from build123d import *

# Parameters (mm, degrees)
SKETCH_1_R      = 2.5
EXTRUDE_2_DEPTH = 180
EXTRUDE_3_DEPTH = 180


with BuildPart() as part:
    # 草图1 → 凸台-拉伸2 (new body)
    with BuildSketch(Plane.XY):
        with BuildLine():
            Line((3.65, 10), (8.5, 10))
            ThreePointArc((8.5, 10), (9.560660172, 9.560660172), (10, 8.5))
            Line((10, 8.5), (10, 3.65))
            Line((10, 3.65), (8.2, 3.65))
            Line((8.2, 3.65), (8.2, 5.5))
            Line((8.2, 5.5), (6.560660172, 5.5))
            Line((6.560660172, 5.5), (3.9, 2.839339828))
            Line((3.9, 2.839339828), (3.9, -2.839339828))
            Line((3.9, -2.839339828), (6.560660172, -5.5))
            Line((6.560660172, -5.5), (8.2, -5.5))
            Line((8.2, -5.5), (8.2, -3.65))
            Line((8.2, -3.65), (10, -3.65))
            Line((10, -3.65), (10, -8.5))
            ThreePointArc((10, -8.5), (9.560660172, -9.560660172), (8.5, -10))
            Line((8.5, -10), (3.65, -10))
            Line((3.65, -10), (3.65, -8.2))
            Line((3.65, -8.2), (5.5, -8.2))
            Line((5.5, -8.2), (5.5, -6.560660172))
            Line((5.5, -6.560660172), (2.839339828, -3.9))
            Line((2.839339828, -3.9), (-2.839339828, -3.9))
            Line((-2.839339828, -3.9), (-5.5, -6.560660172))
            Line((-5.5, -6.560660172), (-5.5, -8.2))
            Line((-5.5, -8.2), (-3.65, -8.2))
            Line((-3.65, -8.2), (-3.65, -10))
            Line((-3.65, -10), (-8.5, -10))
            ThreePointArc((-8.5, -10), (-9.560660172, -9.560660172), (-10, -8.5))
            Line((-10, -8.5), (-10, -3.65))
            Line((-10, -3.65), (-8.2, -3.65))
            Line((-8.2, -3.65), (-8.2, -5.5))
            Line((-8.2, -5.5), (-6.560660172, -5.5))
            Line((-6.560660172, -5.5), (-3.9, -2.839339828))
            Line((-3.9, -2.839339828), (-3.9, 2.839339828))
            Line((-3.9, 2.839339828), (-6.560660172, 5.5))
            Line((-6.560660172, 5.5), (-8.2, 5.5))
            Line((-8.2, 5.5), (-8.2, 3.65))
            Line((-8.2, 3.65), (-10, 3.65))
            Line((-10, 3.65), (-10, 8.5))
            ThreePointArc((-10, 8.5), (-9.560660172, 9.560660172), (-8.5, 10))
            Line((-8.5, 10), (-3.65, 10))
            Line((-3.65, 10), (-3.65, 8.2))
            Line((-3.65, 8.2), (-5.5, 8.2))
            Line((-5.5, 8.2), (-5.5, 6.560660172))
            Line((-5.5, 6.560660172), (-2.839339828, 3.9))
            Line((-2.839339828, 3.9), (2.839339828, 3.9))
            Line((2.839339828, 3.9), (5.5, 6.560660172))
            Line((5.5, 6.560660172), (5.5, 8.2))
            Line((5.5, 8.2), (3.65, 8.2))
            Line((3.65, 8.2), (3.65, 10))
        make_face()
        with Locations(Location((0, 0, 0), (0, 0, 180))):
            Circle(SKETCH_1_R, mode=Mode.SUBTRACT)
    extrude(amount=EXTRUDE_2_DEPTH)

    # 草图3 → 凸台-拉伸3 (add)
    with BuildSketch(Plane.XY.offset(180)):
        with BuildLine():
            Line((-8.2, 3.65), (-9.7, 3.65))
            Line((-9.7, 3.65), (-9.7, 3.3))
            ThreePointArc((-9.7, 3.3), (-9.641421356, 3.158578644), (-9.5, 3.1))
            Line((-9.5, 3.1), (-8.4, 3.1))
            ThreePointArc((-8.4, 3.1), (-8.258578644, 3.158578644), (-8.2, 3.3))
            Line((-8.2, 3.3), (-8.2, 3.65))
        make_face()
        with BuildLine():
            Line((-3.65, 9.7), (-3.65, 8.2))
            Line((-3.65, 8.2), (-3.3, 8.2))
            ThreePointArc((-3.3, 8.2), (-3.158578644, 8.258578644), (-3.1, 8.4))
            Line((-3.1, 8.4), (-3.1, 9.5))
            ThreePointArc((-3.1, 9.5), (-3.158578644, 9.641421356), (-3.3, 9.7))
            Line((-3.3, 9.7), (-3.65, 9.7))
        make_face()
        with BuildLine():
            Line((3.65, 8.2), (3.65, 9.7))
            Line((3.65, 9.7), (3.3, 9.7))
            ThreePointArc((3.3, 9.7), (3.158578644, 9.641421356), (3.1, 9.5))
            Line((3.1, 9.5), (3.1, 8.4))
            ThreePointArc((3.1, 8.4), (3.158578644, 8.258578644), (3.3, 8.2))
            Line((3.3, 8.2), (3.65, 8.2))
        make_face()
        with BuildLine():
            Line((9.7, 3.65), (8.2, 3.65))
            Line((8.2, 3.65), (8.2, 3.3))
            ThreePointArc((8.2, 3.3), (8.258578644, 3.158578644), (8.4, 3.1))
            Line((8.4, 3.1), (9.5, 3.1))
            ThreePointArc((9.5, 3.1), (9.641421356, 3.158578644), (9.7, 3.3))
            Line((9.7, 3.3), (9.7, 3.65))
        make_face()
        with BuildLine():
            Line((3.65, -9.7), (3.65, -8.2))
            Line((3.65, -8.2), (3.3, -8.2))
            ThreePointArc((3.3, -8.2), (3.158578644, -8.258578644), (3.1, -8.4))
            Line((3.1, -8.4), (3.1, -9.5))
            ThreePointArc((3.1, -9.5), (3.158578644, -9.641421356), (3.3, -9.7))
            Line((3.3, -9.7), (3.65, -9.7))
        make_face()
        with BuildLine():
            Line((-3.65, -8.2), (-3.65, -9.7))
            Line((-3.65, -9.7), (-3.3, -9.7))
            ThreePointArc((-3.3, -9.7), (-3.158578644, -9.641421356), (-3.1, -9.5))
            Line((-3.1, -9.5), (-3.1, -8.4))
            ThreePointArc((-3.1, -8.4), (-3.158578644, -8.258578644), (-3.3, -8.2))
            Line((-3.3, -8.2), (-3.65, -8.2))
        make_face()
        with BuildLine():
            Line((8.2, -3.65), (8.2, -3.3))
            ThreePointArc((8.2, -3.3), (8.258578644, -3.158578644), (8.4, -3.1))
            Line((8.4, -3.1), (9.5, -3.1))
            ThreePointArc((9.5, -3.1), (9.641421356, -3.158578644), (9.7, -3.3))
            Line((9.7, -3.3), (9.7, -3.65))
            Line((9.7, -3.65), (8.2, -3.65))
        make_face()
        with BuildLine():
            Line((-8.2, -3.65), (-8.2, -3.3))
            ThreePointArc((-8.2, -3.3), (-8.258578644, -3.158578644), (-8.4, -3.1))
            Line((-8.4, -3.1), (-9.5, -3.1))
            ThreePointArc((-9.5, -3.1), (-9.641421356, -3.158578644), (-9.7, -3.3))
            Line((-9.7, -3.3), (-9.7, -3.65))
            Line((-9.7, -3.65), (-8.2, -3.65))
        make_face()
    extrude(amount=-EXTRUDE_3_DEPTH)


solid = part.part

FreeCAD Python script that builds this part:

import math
import FreeCAD as App
import Part
import Sketcher
Q = App.Units.Quantity

doc = App.newDocument("Part")
body = doc.addObject("PartDesign::Body", "Body")

# Sketch on XY plane
sketch1 = body.newObject("Sketcher::SketchObject", "Sketch")
sketch1.AttachmentSupport = (doc.getObject("XY_Plane"), [""])
sketch1.MapMode = "FlatFace"
sketch1.addGeometry(Part.LineSegment(App.Vector(8.5, 10, 0), App.Vector(3.6, 10, 0)), False)
sketch1.addGeometry(Part.LineSegment(App.Vector(3.6, 10, 0), App.Vector(3.6, 8.2, 0)), False)
sketch1.addGeometry(Part.LineSegment(App.Vector(3.6, 8.2, 0), App.Vector(5.5, 8.2, 0)), False)
sketch1.addGeometry(Part.LineSegment(App.Vector(5.5, 8.2, 0), App.Vector(5.5, 6.6, 0)), False)
sketch1.addGeometry(Part.LineSegment(App.Vector(5.5, 6.6, 0), App.Vector(2.8, 3.9, 0)), False)
sketch1.addGeometry(Part.LineSegment(App.Vector(2.8, 3.9, 0), App.Vector(-2.8, 3.9, 0)), False)
sketch1.addGeometry(Part.LineSegment(App.Vector(-2.8, 3.9, 0), App.Vector(-5.5, 6.6, 0)), False)
sketch1.addGeometry(Part.LineSegment(App.Vector(-5.5, 6.6, 0), App.Vector(-5.5, 8.2, 0)), False)
sketch1.addGeometry(Part.LineSegment(App.Vector(-5.5, 8.2, 0), App.Vector(-3.6, 8.2, 0)), False)
sketch1.addGeometry(Part.LineSegment(App.Vector(-3.6, 8.2, 0), App.Vector(-3.6, 10, 0)), False)
sketch1.addGeometry(Part.LineSegment(App.Vector(-3.6, 10, 0), App.Vector(-8.5, 10, 0)), False)
sketch1.addGeometry(Part.ArcOfCircle(Part.Circle(App.Vector(-8.5, 8.5, 0), App.Vector(0, 0, 1), 1.5), math.radians(90), math.radians(180)), False)
sketch1.addGeometry(Part.LineSegment(App.Vector(-10, 8.5, 0), App.Vector(-10, 3.6, 0)), False)
sketch1.addGeometry(Part.LineSegment(App.Vector(-10, 3.6, 0), App.Vector(-8.2, 3.6, 0)), False)
sketch1.addGeometry(Part.LineSegment(App.Vector(-8.2, 3.6, 0), App.Vector(-8.2, 5.5, 0)), False)
sketch1.addGeometry(Part.LineSegment(App.Vector(-8.2, 5.5, 0), App.Vector(-6.6, 5.5, 0)), False)
sketch1.addGeometry(Part.LineSegment(App.Vector(-6.6, 5.5, 0), App.Vector(-3.9, 2.8, 0)), False)
sketch1.addGeometry(Part.LineSegment(App.Vector(-3.9, 2.8, 0), App.Vector(-3.9, -2.8, 0)), False)
sketch1.addGeometry(Part.LineSegment(App.Vector(-3.9, -2.8, 0), App.Vector(-6.6, -5.5, 0)), False)
sketch1.addGeometry(Part.LineSegment(App.Vector(-6.6, -5.5, 0), App.Vector(-8.2, -5.5, 0)), False)
sketch1.addGeometry(Part.LineSegment(App.Vector(-8.2, -5.5, 0), App.Vector(-8.2, -3.6, 0)), False)
sketch1.addGeometry(Part.LineSegment(App.Vector(-8.2, -3.6, 0), App.Vector(-10, -3.6, 0)), False)
sketch1.addGeometry(Part.LineSegment(App.Vector(-10, -3.6, 0), App.Vector(-10, -8.5, 0)), False)
sketch1.addGeometry(Part.ArcOfCircle(Part.Circle(App.Vector(-8.5, -8.5, 0), App.Vector(0, 0, 1), 1.5), math.radians(180), math.radians(270)), False)
sketch1.addGeometry(Part.LineSegment(App.Vector(-8.5, -10, 0), App.Vector(-3.6, -10, 0)), False)
sketch1.addGeometry(Part.LineSegment(App.Vector(-3.6, -10, 0), App.Vector(-3.6, -8.2, 0)), False)
sketch1.addGeometry(Part.LineSegment(App.Vector(-3.6, -8.2, 0), App.Vector(-5.5, -8.2, 0)), False)
sketch1.addGeometry(Part.LineSegment(App.Vector(-5.5, -8.2, 0), App.Vector(-5.5, -6.6, 0)), False)
sketch1.addGeometry(Part.LineSegment(App.Vector(-5.5, -6.6, 0), App.Vector(-2.8, -3.9, 0)), False)
sketch1.addGeometry(Part.LineSegment(App.Vector(-2.8, -3.9, 0), App.Vector(2.8, -3.9, 0)), False)
sketch1.addGeometry(Part.LineSegment(App.Vector(2.8, -3.9, 0), App.Vector(5.5, -6.6, 0)), False)
sketch1.addGeometry(Part.LineSegment(App.Vector(5.5, -6.6, 0), App.Vector(5.5, -8.2, 0)), False)
sketch1.addGeometry(Part.LineSegment(App.Vector(5.5, -8.2, 0), App.Vector(3.6, -8.2, 0)), False)
sketch1.addGeometry(Part.LineSegment(App.Vector(3.6, -8.2, 0), App.Vector(3.6, -10, 0)), False)
sketch1.addGeometry(Part.LineSegment(App.Vector(3.6, -10, 0), App.Vector(8.5, -10, 0)), False)
sketch1.addGeometry(Part.ArcOfCircle(Part.Circle(App.Vector(8.5, -8.5, 0), App.Vector(0, 0, 1), 1.5), math.radians(-90), math.radians(0)), False)
sketch1.addGeometry(Part.LineSegment(App.Vector(10, -8.5, 0), App.Vector(10, -3.6, 0)), False)
sketch1.addGeometry(Part.LineSegment(App.Vector(10, -3.6, 0), App.Vector(8.2, -3.6, 0)), False)
sketch1.addGeometry(Part.LineSegment(App.Vector(8.2, -3.6, 0), App.Vector(8.2, -5.5, 0)), False)
sketch1.addGeometry(Part.LineSegment(App.Vector(8.2, -5.5, 0), App.Vector(6.6, -5.5, 0)), False)
sketch1.addGeometry(Part.LineSegment(App.Vector(6.6, -5.5, 0), App.Vector(3.9, -2.8, 0)), False)
sketch1.addGeometry(Part.LineSegment(App.Vector(3.9, -2.8, 0), App.Vector(3.9, 2.8, 0)), False)
sketch1.addGeometry(Part.LineSegment(App.Vector(3.9, 2.8, 0), App.Vector(6.6, 5.5, 0)), False)
sketch1.addGeometry(Part.LineSegment(App.Vector(6.6, 5.5, 0), App.Vector(8.2, 5.5, 0)), False)
sketch1.addGeometry(Part.LineSegment(App.Vector(8.2, 5.5, 0), App.Vector(8.2, 3.6, 0)), False)
sketch1.addGeometry(Part.LineSegment(App.Vector(8.2, 3.6, 0), App.Vector(10, 3.6, 0)), False)
sketch1.addGeometry(Part.LineSegment(App.Vector(10, 3.6, 0), App.Vector(10, 8.5, 0)), False)
sketch1.addGeometry(Part.ArcOfCircle(Part.Circle(App.Vector(8.5, 8.5, 0), App.Vector(0, 0, 1), 1.5), math.radians(0), math.radians(90)), False)
sketch1.addGeometry(Part.Circle(App.Vector(0, 0, 0), App.Vector(0, 0, 1), 2.5), False)
sketch1.addConstraint(Sketcher.Constraint("Coincident", 0, 2, 1, 1))
sketch1.addConstraint(Sketcher.Constraint("Coincident", 1, 2, 2, 1))
sketch1.addConstraint(Sketcher.Constraint("Coincident", 2, 2, 3, 1))
sketch1.addConstraint(Sketcher.Constraint("Coincident", 3, 2, 4, 1))
sketch1.addConstraint(Sketcher.Constraint("Coincident", 4, 2, 5, 1))
sketch1.addConstraint(Sketcher.Constraint("Coincident", 5, 2, 6, 1))
sketch1.addConstraint(Sketcher.Constraint("Coincident", 6, 2, 7, 1))
sketch1.addConstraint(Sketcher.Constraint("Coincident", 7, 2, 8, 1))
sketch1.addConstraint(Sketcher.Constraint("Coincident", 8, 2, 9, 1))
sketch1.addConstraint(Sketcher.Constraint("Coincident", 9, 2, 10, 1))
sketch1.addConstraint(Sketcher.Constraint("Tangent", 10, 2, 11, 1))
sketch1.addConstraint(Sketcher.Constraint("Tangent", 11, 2, 12, 1))
sketch1.addConstraint(Sketcher.Constraint("Coincident", 12, 2, 13, 1))
sketch1.addConstraint(Sketcher.Constraint("Coincident", 13, 2, 14, 1))
sketch1.addConstraint(Sketcher.Constraint("Coincident", 14, 2, 15, 1))
sketch1.addConstraint(Sketcher.Constraint("Coincident", 15, 2, 16, 1))
sketch1.addConstraint(Sketcher.Constraint("Coincident", 16, 2, 17, 1))
sketch1.addConstraint(Sketcher.Constraint("Coincident", 17, 2, 18, 1))
sketch1.addConstraint(Sketcher.Constraint("Coincident", 18, 2, 19, 1))
sketch1.addConstraint(Sketcher.Constraint("Coincident", 19, 2, 20, 1))
sketch1.addConstraint(Sketcher.Constraint("Coincident", 20, 2, 21, 1))
sketch1.addConstraint(Sketcher.Constraint("Coincident", 21, 2, 22, 1))
sketch1.addConstraint(Sketcher.Constraint("Tangent", 22, 2, 23, 1))
sketch1.addConstraint(Sketcher.Constraint("Tangent", 23, 2, 24, 1))
sketch1.addConstraint(Sketcher.Constraint("Coincident", 24, 2, 25, 1))
sketch1.addConstraint(Sketcher.Constraint("Coincident", 25, 2, 26, 1))
sketch1.addConstraint(Sketcher.Constraint("Coincident", 26, 2, 27, 1))
sketch1.addConstraint(Sketcher.Constraint("Coincident", 27, 2, 28, 1))
sketch1.addConstraint(Sketcher.Constraint("Coincident", 28, 2, 29, 1))
sketch1.addConstraint(Sketcher.Constraint("Coincident", 29, 2, 30, 1))
sketch1.addConstraint(Sketcher.Constraint("Coincident", 30, 2, 31, 1))
sketch1.addConstraint(Sketcher.Constraint("Coincident", 31, 2, 32, 1))
sketch1.addConstraint(Sketcher.Constraint("Coincident", 32, 2, 33, 1))
sketch1.addConstraint(Sketcher.Constraint("Coincident", 33, 2, 34, 1))
sketch1.addConstraint(Sketcher.Constraint("Tangent", 34, 2, 35, 1))
sketch1.addConstraint(Sketcher.Constraint("Tangent", 35, 2, 36, 1))
sketch1.addConstraint(Sketcher.Constraint("Coincident", 36, 2, 37, 1))
sketch1.addConstraint(Sketcher.Constraint("Coincident", 37, 2, 38, 1))
sketch1.addConstraint(Sketcher.Constraint("Coincident", 38, 2, 39, 1))
sketch1.addConstraint(Sketcher.Constraint("Coincident", 39, 2, 40, 1))
sketch1.addConstraint(Sketcher.Constraint("Coincident", 40, 2, 41, 1))
sketch1.addConstraint(Sketcher.Constraint("Coincident", 41, 2, 42, 1))
sketch1.addConstraint(Sketcher.Constraint("Coincident", 42, 2, 43, 1))
sketch1.addConstraint(Sketcher.Constraint("Coincident", 43, 2, 44, 1))
sketch1.addConstraint(Sketcher.Constraint("Coincident", 44, 2, 45, 1))
sketch1.addConstraint(Sketcher.Constraint("Coincident", 45, 2, 46, 1))
sketch1.addConstraint(Sketcher.Constraint("Tangent", 46, 2, 47, 1))
sketch1.addConstraint(Sketcher.Constraint("Tangent", 47, 2, 0, 1))
sketch1.addConstraint(Sketcher.Constraint("Horizontal", 0))
sketch1.addConstraint(Sketcher.Constraint("Vertical", 1))
sketch1.addConstraint(Sketcher.Constraint("Horizontal", 2))
sketch1.addConstraint(Sketcher.Constraint("Vertical", 3))
sketch1.addConstraint(Sketcher.Constraint("Horizontal", 5))
sketch1.addConstraint(Sketcher.Constraint("Vertical", 7))
sketch1.addConstraint(Sketcher.Constraint("Horizontal", 8))
sketch1.addConstraint(Sketcher.Constraint("Vertical", 9))
sketch1.addConstraint(Sketcher.Constraint("Horizontal", 10))
sketch1.addConstraint(Sketcher.Constraint("Vertical", 12))
sketch1.addConstraint(Sketcher.Constraint("Horizontal", 13))
sketch1.addConstraint(Sketcher.Constraint("Vertical", 14))
sketch1.addConstraint(Sketcher.Constraint("Horizontal", 15))
sketch1.addConstraint(Sketcher.Constraint("Vertical", 17))
sketch1.addConstraint(Sketcher.Constraint("Horizontal", 19))
sketch1.addConstraint(Sketcher.Constraint("Vertical", 20))
sketch1.addConstraint(Sketcher.Constraint("Horizontal", 21))
sketch1.addConstraint(Sketcher.Constraint("Vertical", 22))
sketch1.addConstraint(Sketcher.Constraint("Horizontal", 24))
sketch1.addConstraint(Sketcher.Constraint("Vertical", 25))
sketch1.addConstraint(Sketcher.Constraint("Horizontal", 26))
sketch1.addConstraint(Sketcher.Constraint("Vertical", 27))
sketch1.addConstraint(Sketcher.Constraint("Horizontal", 29))
sketch1.addConstraint(Sketcher.Constraint("Vertical", 31))
sketch1.addConstraint(Sketcher.Constraint("Horizontal", 32))
sketch1.addConstraint(Sketcher.Constraint("Vertical", 33))
sketch1.addConstraint(Sketcher.Constraint("Horizontal", 34))
sketch1.addConstraint(Sketcher.Constraint("Vertical", 36))
sketch1.addConstraint(Sketcher.Constraint("Horizontal", 37))
sketch1.addConstraint(Sketcher.Constraint("Vertical", 38))
sketch1.addConstraint(Sketcher.Constraint("Horizontal", 39))
sketch1.addConstraint(Sketcher.Constraint("Vertical", 41))
sketch1.addConstraint(Sketcher.Constraint("Horizontal", 43))
sketch1.addConstraint(Sketcher.Constraint("Vertical", 44))
sketch1.addConstraint(Sketcher.Constraint("Horizontal", 45))
sketch1.addConstraint(Sketcher.Constraint("Vertical", 46))
sketch1.addConstraint(Sketcher.Constraint("Coincident", 48, 3, -1, 1))
sketch1.addConstraint(Sketcher.Constraint("Equal", 11, 23))
sketch1.addConstraint(Sketcher.Constraint("Equal", 23, 35))
sketch1.addConstraint(Sketcher.Constraint("Equal", 35, 47))
sketch1.addConstraint(Sketcher.Constraint("Symmetric", 11, 3, 35, 3, -1, 1))
sketch1.addConstraint(Sketcher.Constraint("Symmetric", 23, 3, 47, 3, -1, 1))
sketch1.addConstraint(Sketcher.Constraint("Symmetric", 1, 2, 25, 2, -1, 1))
sketch1.addConstraint(Sketcher.Constraint("Symmetric", 3, 2, 27, 2, -1, 1))
sketch1.addConstraint(Sketcher.Constraint("Symmetric", 4, 2, 28, 2, -1, 1))
sketch1.addConstraint(Sketcher.Constraint("Symmetric", 6, 2, 30, 2, -1, 1))
sketch1.addConstraint(Sketcher.Constraint("Symmetric", 8, 2, 32, 2, -1, 1))
sketch1.addConstraint(Sketcher.Constraint("Symmetric", 13, 2, 37, 2, -1, 1))
sketch1.addConstraint(Sketcher.Constraint("Symmetric", 15, 2, 39, 2, -1, 1))
sketch1.addConstraint(Sketcher.Constraint("Symmetric", 16, 2, 40, 2, -1, 1))
sketch1.addConstraint(Sketcher.Constraint("Symmetric", 18, 2, 42, 2, -1, 1))
sketch1.addConstraint(Sketcher.Constraint("Symmetric", 20, 2, 44, 2, -1, 1))
sketch1.addConstraint(Sketcher.Constraint("Symmetric", 23, 3, 35, 3, -2))
sketch1.addConstraint(Sketcher.Constraint("Symmetric", 3, 2, 6, 2, -2))
sketch1.addConstraint(Sketcher.Constraint("Symmetric", 1, 2, 8, 2, -2))
sketch1.addConstraint(Sketcher.Constraint("Symmetric", 20, 2, 37, 2, -2))
sketch1.addConstraint(Sketcher.Constraint("Symmetric", 18, 2, 39, 2, -2))
sketch1.addConstraint(Sketcher.Constraint("Perpendicular", 4, 6))
sketch1.addConstraint(Sketcher.Constraint("Parallel", 6, 16))
sketch1.addConstraint(Sketcher.Constraint("Perpendicular", 16, 18))
sketch1.addConstraint(Sketcher.Constraint("Perpendicular", 28, 30))
sketch1.addConstraint(Sketcher.Constraint("Perpendicular", 40, 42))
sketch1.addConstraint(Sketcher.Constraint("Horizontal", 17, 2, 40, 2))
sketch1.addConstraint(Sketcher.Constraint("Equal", 45, 1))
sketch1.addConstraint(Sketcher.Constraint("Equal", 43, 3))
sketch1.addConstraint(Sketcher.Constraint("Equal", 34, 12))
sketch1.addConstraint(Sketcher.Constraint("Equal", 32, 14))
sketch1.addConstraint(Sketcher.Constraint("Equal", 29, 17))
sketch1.addConstraint(Sketcher.Constraint("Equal", 6, 16))
sketch1.addConstraint(Sketcher.Constraint("Diameter", 48, Q("5 mm")))
sketch1.addConstraint(Sketcher.Constraint("Radius", 11, Q("1.5 mm")))
sketch1.addConstraint(Sketcher.Constraint("DistanceX", 13, 1, 13, 2, Q("1.8 mm")))
sketch1.addConstraint(Sketcher.Constraint("DistanceY", -1, 1, 0, 2, Q("10 mm")))
sketch1.addConstraint(Sketcher.Constraint("DistanceX", 2, 2, 47, 3, Q("3 mm")))
sketch1.addConstraint(Sketcher.Constraint("DistanceX", 0, 2, 0, 1, Q("4.85 mm")))
sketch1.addConstraint(Sketcher.Constraint("DistanceY", -1, 1, 4, 2, Q("3.9 mm")))
sketch1.addConstraint(Sketcher.Constraint("DistanceX", 5, 2, 5, 1, Q("5.67868 mm")))
pad1 = body.newObject("PartDesign::Pad", "Pad")
pad1.Profile = sketch1
pad1.Length = 180

# Sketch on XY plane
sketch2 = body.newObject("Sketcher::SketchObject", "Sketch001")
sketch2.AttachmentSupport = (doc.getObject("XY_Plane"), [""])
sketch2.MapMode = "FlatFace"
sketch2.AttachmentOffset = App.Placement(App.Vector(0, 0, 180), App.Rotation())
sketch2.addGeometry(Part.LineSegment(App.Vector(-8.2, 3.65, 0), App.Vector(-9.7, 3.65, 0)), False)
sketch2.addGeometry(Part.LineSegment(App.Vector(-9.7, 3.65, 0), App.Vector(-9.7, 3.3, 0)), False)
sketch2.addGeometry(Part.ArcOfCircle(Part.Circle(App.Vector(-9.5, 3.3, 0), App.Vector(0, 0, 1), 0.2), math.radians(-180), math.radians(-90)), False)
sketch2.addGeometry(Part.LineSegment(App.Vector(-9.5, 3.1, 0), App.Vector(-8.4, 3.1, 0)), False)
sketch2.addGeometry(Part.ArcOfCircle(Part.Circle(App.Vector(-8.4, 3.3, 0), App.Vector(0, 0, 1), 0.2), math.radians(-90), math.radians(0)), False)
sketch2.addGeometry(Part.LineSegment(App.Vector(-8.2, 3.3, 0), App.Vector(-8.2, 3.65, 0)), False)
sketch2.addGeometry(Part.LineSegment(App.Vector(-3.65, 9.7, 0), App.Vector(-3.65, 8.2, 0)), False)
sketch2.addGeometry(Part.LineSegment(App.Vector(-3.65, 8.2, 0), App.Vector(-3.3, 8.2, 0)), False)
sketch2.addGeometry(Part.ArcOfCircle(Part.Circle(App.Vector(-3.3, 8.4, 0), App.Vector(0, 0, 1), 0.2), math.radians(-90), math.radians(0)), False)
sketch2.addGeometry(Part.LineSegment(App.Vector(-3.1, 8.4, 0), App.Vector(-3.1, 9.5, 0)), False)
sketch2.addGeometry(Part.ArcOfCircle(Part.Circle(App.Vector(-3.3, 9.5, 0), App.Vector(0, 0, 1), 0.2), math.radians(0), math.radians(90)), False)
sketch2.addGeometry(Part.LineSegment(App.Vector(-3.3, 9.7, 0), App.Vector(-3.65, 9.7, 0)), False)
sketch2.addGeometry(Part.LineSegment(App.Vector(3.65, 8.2, 0), App.Vector(3.65, 9.7, 0)), False)
sketch2.addGeometry(Part.LineSegment(App.Vector(3.65, 9.7, 0), App.Vector(3.3, 9.7, 0)), False)
sketch2.addGeometry(Part.ArcOfCircle(Part.Circle(App.Vector(3.3, 9.5, 0), App.Vector(0, 0, 1), 0.2), math.radians(90), math.radians(180)), False)
sketch2.addGeometry(Part.LineSegment(App.Vector(3.1, 9.5, 0), App.Vector(3.1, 8.4, 0)), False)
sketch2.addGeometry(Part.ArcOfCircle(Part.Circle(App.Vector(3.3, 8.4, 0), App.Vector(0, 0, 1), 0.2), math.radians(-180), math.radians(-90)), False)
sketch2.addGeometry(Part.LineSegment(App.Vector(3.3, 8.2, 0), App.Vector(3.65, 8.2, 0)), False)
sketch2.addGeometry(Part.LineSegment(App.Vector(9.7, 3.65, 0), App.Vector(8.2, 3.65, 0)), False)
sketch2.addGeometry(Part.LineSegment(App.Vector(8.2, 3.65, 0), App.Vector(8.2, 3.3, 0)), False)
sketch2.addGeometry(Part.ArcOfCircle(Part.Circle(App.Vector(8.4, 3.3, 0), App.Vector(0, 0, 1), 0.2), math.radians(-180), math.radians(-90)), False)
sketch2.addGeometry(Part.LineSegment(App.Vector(8.4, 3.1, 0), App.Vector(9.5, 3.1, 0)), False)
sketch2.addGeometry(Part.ArcOfCircle(Part.Circle(App.Vector(9.5, 3.3, 0), App.Vector(0, 0, 1), 0.2), math.radians(-90), math.radians(0)), False)
sketch2.addGeometry(Part.LineSegment(App.Vector(9.7, 3.3, 0), App.Vector(9.7, 3.65, 0)), False)
sketch2.addGeometry(Part.LineSegment(App.Vector(3.65, -9.7, 0), App.Vector(3.65, -8.2, 0)), False)
sketch2.addGeometry(Part.LineSegment(App.Vector(3.65, -8.2, 0), App.Vector(3.3, -8.2, 0)), False)
sketch2.addGeometry(Part.ArcOfCircle(Part.Circle(App.Vector(3.3, -8.4, 0), App.Vector(0, 0, 1), 0.2), math.radians(90), math.radians(180)), False)
sketch2.addGeometry(Part.LineSegment(App.Vector(3.1, -8.4, 0), App.Vector(3.1, -9.5, 0)), False)
sketch2.addGeometry(Part.ArcOfCircle(Part.Circle(App.Vector(3.3, -9.5, 0), App.Vector(0, 0, 1), 0.2), math.radians(-180), math.radians(-90)), False)
sketch2.addGeometry(Part.LineSegment(App.Vector(3.3, -9.7, 0), App.Vector(3.65, -9.7, 0)), False)
sketch2.addGeometry(Part.LineSegment(App.Vector(-3.65, -8.2, 0), App.Vector(-3.65, -9.7, 0)), False)
sketch2.addGeometry(Part.LineSegment(App.Vector(-3.65, -9.7, 0), App.Vector(-3.3, -9.7, 0)), False)
sketch2.addGeometry(Part.ArcOfCircle(Part.Circle(App.Vector(-3.3, -9.5, 0), App.Vector(0, 0, 1), 0.2), math.radians(-90), math.radians(0)), False)
sketch2.addGeometry(Part.LineSegment(App.Vector(-3.1, -9.5, 0), App.Vector(-3.1, -8.4, 0)), False)
sketch2.addGeometry(Part.ArcOfCircle(Part.Circle(App.Vector(-3.3, -8.4, 0), App.Vector(0, 0, 1), 0.2), math.radians(0), math.radians(90)), False)
sketch2.addGeometry(Part.LineSegment(App.Vector(-3.3, -8.2, 0), App.Vector(-3.65, -8.2, 0)), False)
sketch2.addGeometry(Part.LineSegment(App.Vector(8.2, -3.3, 0), App.Vector(8.2, -3.65, 0)), False)
sketch2.addGeometry(Part.LineSegment(App.Vector(8.2, -3.65, 0), App.Vector(9.7, -3.65, 0)), False)
sketch2.addGeometry(Part.LineSegment(App.Vector(9.7, -3.65, 0), App.Vector(9.7, -3.3, 0)), False)
sketch2.addGeometry(Part.ArcOfCircle(Part.Circle(App.Vector(9.5, -3.3, 0), App.Vector(0, 0, 1), 0.2), math.radians(0), math.radians(90)), False)
sketch2.addGeometry(Part.LineSegment(App.Vector(9.5, -3.1, 0), App.Vector(8.4, -3.1, 0)), False)
sketch2.addGeometry(Part.ArcOfCircle(Part.Circle(App.Vector(8.4, -3.3, 0), App.Vector(0, 0, 1), 0.2), math.radians(90), math.radians(180)), False)
sketch2.addGeometry(Part.LineSegment(App.Vector(-8.2, -3.65, 0), App.Vector(-8.2, -3.3, 0)), False)
sketch2.addGeometry(Part.ArcOfCircle(Part.Circle(App.Vector(-8.4, -3.3, 0), App.Vector(0, 0, 1), 0.2), math.radians(0), math.radians(90)), False)
sketch2.addGeometry(Part.LineSegment(App.Vector(-8.4, -3.1, 0), App.Vector(-9.5, -3.1, 0)), False)
sketch2.addGeometry(Part.ArcOfCircle(Part.Circle(App.Vector(-9.5, -3.3, 0), App.Vector(0, 0, 1), 0.2), math.radians(90), math.radians(180)), False)
sketch2.addGeometry(Part.LineSegment(App.Vector(-9.7, -3.3, 0), App.Vector(-9.7, -3.65, 0)), False)
sketch2.addGeometry(Part.LineSegment(App.Vector(-9.7, -3.65, 0), App.Vector(-8.2, -3.65, 0)), False)
sketch2.addConstraint(Sketcher.Constraint("Coincident", 0, 2, 1, 1))
sketch2.addConstraint(Sketcher.Constraint("Tangent", 1, 2, 2, 1))
sketch2.addConstraint(Sketcher.Constraint("Tangent", 2, 2, 3, 1))
sketch2.addConstraint(Sketcher.Constraint("Tangent", 3, 2, 4, 1))
sketch2.addConstraint(Sketcher.Constraint("Tangent", 4, 2, 5, 1))
sketch2.addConstraint(Sketcher.Constraint("Coincident", 5, 2, 0, 1))
sketch2.addConstraint(Sketcher.Constraint("Coincident", 6, 2, 7, 1))
sketch2.addConstraint(Sketcher.Constraint("Tangent", 7, 2, 8, 1))
sketch2.addConstraint(Sketcher.Constraint("Tangent", 8, 2, 9, 1))
sketch2.addConstraint(Sketcher.Constraint("Tangent", 9, 2, 10, 1))
sketch2.addConstraint(Sketcher.Constraint("Tangent", 10, 2, 11, 1))
sketch2.addConstraint(Sketcher.Constraint("Coincident", 11, 2, 6, 1))
sketch2.addConstraint(Sketcher.Constraint("Coincident", 12, 2, 13, 1))
sketch2.addConstraint(Sketcher.Constraint("Tangent", 13, 2, 14, 1))
sketch2.addConstraint(Sketcher.Constraint("Tangent", 14, 2, 15, 1))
sketch2.addConstraint(Sketcher.Constraint("Tangent", 15, 2, 16, 1))
sketch2.addConstraint(Sketcher.Constraint("Tangent", 16, 2, 17, 1))
sketch2.addConstraint(Sketcher.Constraint("Coincident", 17, 2, 12, 1))
sketch2.addConstraint(Sketcher.Constraint("Coincident", 18, 2, 19, 1))
sketch2.addConstraint(Sketcher.Constraint("Tangent", 19, 2, 20, 1))
sketch2.addConstraint(Sketcher.Constraint("Tangent", 20, 2, 21, 1))
sketch2.addConstraint(Sketcher.Constraint("Tangent", 21, 2, 22, 1))
sketch2.addConstraint(Sketcher.Constraint("Tangent", 22, 2, 23, 1))
sketch2.addConstraint(Sketcher.Constraint("Coincident", 23, 2, 18, 1))
sketch2.addConstraint(Sketcher.Constraint("Coincident", 24, 2, 25, 1))
sketch2.addConstraint(Sketcher.Constraint("Tangent", 25, 2, 26, 1))
sketch2.addConstraint(Sketcher.Constraint("Tangent", 26, 2, 27, 1))
sketch2.addConstraint(Sketcher.Constraint("Tangent", 27, 2, 28, 1))
sketch2.addConstraint(Sketcher.Constraint("Tangent", 28, 2, 29, 1))
sketch2.addConstraint(Sketcher.Constraint("Coincident", 29, 2, 24, 1))
sketch2.addConstraint(Sketcher.Constraint("Coincident", 30, 2, 31, 1))
sketch2.addConstraint(Sketcher.Constraint("Tangent", 31, 2, 32, 1))
sketch2.addConstraint(Sketcher.Constraint("Tangent", 32, 2, 33, 1))
sketch2.addConstraint(Sketcher.Constraint("Tangent", 33, 2, 34, 1))
sketch2.addConstraint(Sketcher.Constraint("Tangent", 34, 2, 35, 1))
sketch2.addConstraint(Sketcher.Constraint("Coincident", 35, 2, 30, 1))
sketch2.addConstraint(Sketcher.Constraint("Coincident", 36, 2, 37, 1))
sketch2.addConstraint(Sketcher.Constraint("Coincident", 37, 2, 38, 1))
sketch2.addConstraint(Sketcher.Constraint("Tangent", 38, 2, 39, 1))
sketch2.addConstraint(Sketcher.Constraint("Tangent", 39, 2, 40, 1))
sketch2.addConstraint(Sketcher.Constraint("Tangent", 40, 2, 41, 1))
sketch2.addConstraint(Sketcher.Constraint("Tangent", 41, 2, 36, 1))
sketch2.addConstraint(Sketcher.Constraint("Tangent", 42, 2, 43, 1))
sketch2.addConstraint(Sketcher.Constraint("Tangent", 43, 2, 44, 1))
sketch2.addConstraint(Sketcher.Constraint("Tangent", 44, 2, 45, 1))
sketch2.addConstraint(Sketcher.Constraint("Tangent", 45, 2, 46, 1))
sketch2.addConstraint(Sketcher.Constraint("Coincident", 46, 2, 47, 1))
sketch2.addConstraint(Sketcher.Constraint("Coincident", 47, 2, 42, 1))
sketch2.addConstraint(Sketcher.Constraint("Horizontal", 0))
sketch2.addConstraint(Sketcher.Constraint("Vertical", 1))
sketch2.addConstraint(Sketcher.Constraint("Horizontal", 3))
sketch2.addConstraint(Sketcher.Constraint("Vertical", 5))
sketch2.addConstraint(Sketcher.Constraint("Vertical", 6))
sketch2.addConstraint(Sketcher.Constraint("Horizontal", 7))
sketch2.addConstraint(Sketcher.Constraint("Vertical", 9))
sketch2.addConstraint(Sketcher.Constraint("Horizontal", 11))
sketch2.addConstraint(Sketcher.Constraint("Vertical", 12))
sketch2.addConstraint(Sketcher.Constraint("Horizontal", 13))
sketch2.addConstraint(Sketcher.Constraint("Vertical", 15))
sketch2.addConstraint(Sketcher.Constraint("Horizontal", 17))
sketch2.addConstraint(Sketcher.Constraint("Horizontal", 18))
sketch2.addConstraint(Sketcher.Constraint("Vertical", 19))
sketch2.addConstraint(Sketcher.Constraint("Horizontal", 21))
sketch2.addConstraint(Sketcher.Constraint("Vertical", 23))
sketch2.addConstraint(Sketcher.Constraint("Vertical", 24))
sketch2.addConstraint(Sketcher.Constraint("Horizontal", 25))
sketch2.addConstraint(Sketcher.Constraint("Vertical", 27))
sketch2.addConstraint(Sketcher.Constraint("Horizontal", 29))
sketch2.addConstraint(Sketcher.Constraint("Vertical", 30))
sketch2.addConstraint(Sketcher.Constraint("Horizontal", 31))
sketch2.addConstraint(Sketcher.Constraint("Vertical", 33))
sketch2.addConstraint(Sketcher.Constraint("Horizontal", 35))
sketch2.addConstraint(Sketcher.Constraint("Vertical", 36))
sketch2.addConstraint(Sketcher.Constraint("Horizontal", 37))
sketch2.addConstraint(Sketcher.Constraint("Vertical", 38))
sketch2.addConstraint(Sketcher.Constraint("Horizontal", 40))
sketch2.addConstraint(Sketcher.Constraint("Vertical", 42))
sketch2.addConstraint(Sketcher.Constraint("Horizontal", 44))
sketch2.addConstraint(Sketcher.Constraint("Vertical", 46))
sketch2.addConstraint(Sketcher.Constraint("Horizontal", 47))
sketch2.addConstraint(Sketcher.Constraint("Equal", 2, 4))
sketch2.addConstraint(Sketcher.Constraint("Equal", 4, 8))
sketch2.addConstraint(Sketcher.Constraint("Equal", 8, 10))
sketch2.addConstraint(Sketcher.Constraint("Equal", 10, 14))
sketch2.addConstraint(Sketcher.Constraint("Equal", 14, 16))
sketch2.addConstraint(Sketcher.Constraint("Equal", 16, 20))
sketch2.addConstraint(Sketcher.Constraint("Equal", 20, 22))
sketch2.addConstraint(Sketcher.Constraint("Equal", 22, 26))
sketch2.addConstraint(Sketcher.Constraint("Equal", 26, 28))
sketch2.addConstraint(Sketcher.Constraint("Equal", 28, 32))
sketch2.addConstraint(Sketcher.Constraint("Equal", 32, 34))
sketch2.addConstraint(Sketcher.Constraint("Equal", 34, 39))
sketch2.addConstraint(Sketcher.Constraint("Equal", 39, 41))
sketch2.addConstraint(Sketcher.Constraint("Equal", 41, 43))
sketch2.addConstraint(Sketcher.Constraint("Equal", 43, 45))
sketch2.addConstraint(Sketcher.Constraint("Symmetric", 8, 3, 26, 3, -1, 1))
sketch2.addConstraint(Sketcher.Constraint("Symmetric", 14, 3, 32, 3, -1, 1))
sketch2.addConstraint(Sketcher.Constraint("Symmetric", 2, 3, 39, 3, -1, 1))
sketch2.addConstraint(Sketcher.Constraint("Symmetric", 20, 3, 43, 3, -1, 1))
sketch2.addConstraint(Sketcher.Constraint("Symmetric", 11, 2, 29, 2, -1, 1))
sketch2.addConstraint(Sketcher.Constraint("Symmetric", 17, 2, 35, 2, -1, 1))
sketch2.addConstraint(Sketcher.Constraint("Symmetric", 5, 2, 36, 2, -1, 1))
sketch2.addConstraint(Sketcher.Constraint("Symmetric", 23, 2, 46, 2, -1, 1))
sketch2.addConstraint(Sketcher.Constraint("Symmetric", 10, 3, 14, 3, -2))
sketch2.addConstraint(Sketcher.Constraint("Symmetric", 4, 3, 20, 3, -2))
sketch2.addConstraint(Sketcher.Constraint("Symmetric", 6, 2, 17, 2, -2))
sketch2.addConstraint(Sketcher.Constraint("Symmetric", 0, 2, 23, 2, -2))
sketch2.addConstraint(Sketcher.Constraint("Equal", 35, 1))
sketch2.addConstraint(Sketcher.Constraint("Equal", 47, 6))
sketch2.addConstraint(Sketcher.Constraint("Radius", 2, Q("0.2 mm")))
sketch2.addConstraint(Sketcher.Constraint("DistanceX", 0, 2, 0, 1, Q("1.5 mm")))
sketch2.addConstraint(Sketcher.Constraint("DistanceX", 7, 1, 7, 2, Q("0.35 mm")))
sketch2.addConstraint(Sketcher.Constraint("DistanceX", 2, 3, -1, 1, Q("9.5 mm")))
sketch2.addConstraint(Sketcher.Constraint("DistanceY", -1, 1, 2, 3, Q("3.3 mm")))
sketch2.addConstraint(Sketcher.Constraint("DistanceX", 8, 3, -1, 1, Q("3.3 mm")))
sketch2.addConstraint(Sketcher.Constraint("DistanceY", -1, 1, 8, 3, Q("8.4 mm")))
pad2 = body.newObject("PartDesign::Pad", "Pad001")
pad2.Profile = sketch2
pad2.Length = 180
pad2.Reversed = True

doc.recompute()
